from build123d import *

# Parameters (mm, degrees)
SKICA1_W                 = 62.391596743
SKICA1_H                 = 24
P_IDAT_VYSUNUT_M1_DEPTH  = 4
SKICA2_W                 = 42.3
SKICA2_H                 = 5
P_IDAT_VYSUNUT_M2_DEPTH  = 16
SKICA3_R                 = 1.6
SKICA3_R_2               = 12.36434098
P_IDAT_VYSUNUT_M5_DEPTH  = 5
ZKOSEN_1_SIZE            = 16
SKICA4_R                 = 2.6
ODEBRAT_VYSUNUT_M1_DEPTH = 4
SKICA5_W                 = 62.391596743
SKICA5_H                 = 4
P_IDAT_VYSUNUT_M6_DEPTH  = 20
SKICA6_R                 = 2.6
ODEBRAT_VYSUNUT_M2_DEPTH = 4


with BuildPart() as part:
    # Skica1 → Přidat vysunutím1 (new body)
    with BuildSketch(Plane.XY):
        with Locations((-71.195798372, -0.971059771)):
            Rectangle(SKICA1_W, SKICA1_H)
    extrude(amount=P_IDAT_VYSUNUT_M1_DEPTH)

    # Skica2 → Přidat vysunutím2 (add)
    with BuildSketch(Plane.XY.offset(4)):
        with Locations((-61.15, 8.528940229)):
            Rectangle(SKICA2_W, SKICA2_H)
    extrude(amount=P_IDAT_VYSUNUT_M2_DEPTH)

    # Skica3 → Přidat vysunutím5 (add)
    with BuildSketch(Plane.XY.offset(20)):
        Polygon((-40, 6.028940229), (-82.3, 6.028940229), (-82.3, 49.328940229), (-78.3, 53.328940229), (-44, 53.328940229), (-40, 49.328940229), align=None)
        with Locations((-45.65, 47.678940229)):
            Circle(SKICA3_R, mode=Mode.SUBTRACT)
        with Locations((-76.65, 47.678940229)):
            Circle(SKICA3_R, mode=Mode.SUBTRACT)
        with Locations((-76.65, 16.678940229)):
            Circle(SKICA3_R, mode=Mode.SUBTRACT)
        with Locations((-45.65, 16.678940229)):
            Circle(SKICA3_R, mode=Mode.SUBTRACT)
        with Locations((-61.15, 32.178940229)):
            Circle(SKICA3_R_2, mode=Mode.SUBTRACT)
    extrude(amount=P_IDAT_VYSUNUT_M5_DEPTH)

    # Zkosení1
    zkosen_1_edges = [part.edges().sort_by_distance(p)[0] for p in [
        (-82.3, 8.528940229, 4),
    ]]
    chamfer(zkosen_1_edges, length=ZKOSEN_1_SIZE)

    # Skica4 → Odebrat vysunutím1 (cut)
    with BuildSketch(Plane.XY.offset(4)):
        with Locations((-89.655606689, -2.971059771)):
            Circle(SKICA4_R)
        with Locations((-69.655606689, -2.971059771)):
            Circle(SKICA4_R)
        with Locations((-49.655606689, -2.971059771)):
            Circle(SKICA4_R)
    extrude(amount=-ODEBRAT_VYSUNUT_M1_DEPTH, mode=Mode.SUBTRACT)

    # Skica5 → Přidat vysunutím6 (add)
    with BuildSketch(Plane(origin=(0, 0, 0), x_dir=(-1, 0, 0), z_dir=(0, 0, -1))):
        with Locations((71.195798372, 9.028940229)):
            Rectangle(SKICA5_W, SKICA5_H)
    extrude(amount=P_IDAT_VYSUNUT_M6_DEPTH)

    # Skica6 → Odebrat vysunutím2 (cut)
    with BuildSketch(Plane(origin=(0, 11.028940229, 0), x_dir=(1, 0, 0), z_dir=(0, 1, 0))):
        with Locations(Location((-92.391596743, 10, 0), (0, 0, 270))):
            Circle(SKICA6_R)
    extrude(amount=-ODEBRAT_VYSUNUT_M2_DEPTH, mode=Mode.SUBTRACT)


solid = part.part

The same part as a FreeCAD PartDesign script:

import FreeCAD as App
import Part
import Sketcher
Q = App.Units.Quantity


def edges_at(feature, points):
    """Names of the edges that pass closest to the given points."""
    edges = feature.Shape.Edges
    near = lambda p: min(range(len(edges)), key=lambda i: edges[i].distToShape(Part.Vertex(*p))[0])
    return sorted({f"Edge{near(p) + 1}" for p in points})

doc = App.newDocument("Part")
params = doc.addObject("Spreadsheet::Sheet", "Params")
for row, (alias, value) in enumerate([
    ("sketch1_height", "24 mm"),
    ("pad1_length", "4 mm"),
    ("sketch2_height", "5 mm"),
    ("sketch2_width", "42.3 mm"),
    ("pad2_length", "16 mm"),
    ("sketch3_diameter", "3.2 mm"),
    ("sketch3_width", "42.3 mm"),
    ("sketch3_width2", "34.3 mm"),
    ("sketch3_height", "43.3 mm"),
    ("pad3_length", "5 mm"),
    ("chamfer_size", "16 mm"),
    ("sketch4_diameter", "5.2 mm"),
    ("pocket1_length", "4 mm"),
    ("sketch5_height", "4 mm"),
    ("pad4_length", "20 mm"),
    ("sketch6_diameter", "5.2 mm"),
    ("pocket2_length", "4 mm"),
], start=1):
    params.set(f"A{row}", alias)
    params.set(f"B{row}", "=" + value)
    params.setAlias(f"B{row}", alias)

body = doc.addObject("PartDesign::Body", "Body")

sketch1 = doc.addObject("Sketcher::SketchObject", "Sketch")
body.addObject(sketch1)
sketch1.AttachmentSupport = (doc.XY_Plane, [""])
sketch1.MapMode = "FlatFace"
sketch1.addGeometry([
    Part.LineSegment(App.Vector(-102, 11, 0), App.Vector(-102, -13, 0)),
    Part.LineSegment(App.Vector(-102, -13, 0), App.Vector(-40, -13, 0)),
    Part.LineSegment(App.Vector(-40, -13, 0), App.Vector(-40, 11, 0)),
    Part.LineSegment(App.Vector(-40, 11, 0), App.Vector(-102, 11, 0)),
], False)
sketch1.addConstraint([
    Sketcher.Constraint("Coincident", 0, 2, 1, 1),
    Sketcher.Constraint("Coincident", 1, 2, 2, 1),
    Sketcher.Constraint("Coincident", 2, 2, 3, 1),
    Sketcher.Constraint("Coincident", 3, 2, 0, 1),
    Sketcher.Constraint("Vertical", 0),
    Sketcher.Constraint("Horizontal", 1),
    Sketcher.Constraint("Vertical", 2),
    Sketcher.Constraint("Horizontal", 3),
    Sketcher.Constraint("DistanceY", 0, 2, 0, 1, Q("24 mm")),
    Sketcher.Constraint("DistanceX", 1, 2, -1, 1, Q("40 mm")),
    Sketcher.Constraint("DistanceX", 1, 1, 1, 2, Q("62.391597 mm")),
    Sketcher.Constraint("DistanceY", 0, 2, -1, 1, Q("12.97106 mm")),
])
sketch1.setExpression("Constraints[8]", "Params.sketch1_height")
pad1 = doc.addObject("PartDesign::Pad", "Pad")
body.addObject(pad1)
pad1.Profile = sketch1
pad1.setExpression("Length", "Params.pad1_length")

sketch2 = doc.addObject("Sketcher::SketchObject", "Sketch001")
body.addObject(sketch2)
sketch2.AttachmentSupport = (doc.XY_Plane, [""])
sketch2.MapMode = "FlatFace"
sketch2.AttachmentOffset = App.Placement(App.Vector(0, 0, 4), App.Rotation())
sketch2.addGeometry([
    Part.LineSegment(App.Vector(-82, 11, 0), App.Vector(-82, 6, 0)),
    Part.LineSegment(App.Vector(-82, 6, 0), App.Vector(-40, 6, 0)),
    Part.LineSegment(App.Vector(-40, 6, 0), App.Vector(-40, 11, 0)),
    Part.LineSegment(App.Vector(-40, 11, 0), App.Vector(-82, 11, 0)),
], False)
sketch2.addConstraint([
    Sketcher.Constraint("Coincident", 0, 2, 1, 1),
    Sketcher.Constraint("Coincident", 1, 2, 2, 1),
    Sketcher.Constraint("Coincident", 2, 2, 3, 1),
    Sketcher.Constraint("Coincident", 3, 2, 0, 1),
    Sketcher.Constraint("Vertical", 0),
    Sketcher.Constraint("Horizontal", 1),
    Sketcher.Constraint("Vertical", 2),
    Sketcher.Constraint("Horizontal", 3),
    Sketcher.Constraint("DistanceY", 0, 2, 0, 1, Q("5 mm")),
    Sketcher.Constraint("DistanceX", 1, 1, 1, 2, Q("42.3 mm")),
    Sketcher.Constraint("DistanceX", 1, 2, -1, 1, Q("40 mm")),
    Sketcher.Constraint("DistanceY", -1, 1, 0, 2, Q("6.02894 mm")),
])
sketch2.setExpression("Constraints[8]", "Params.sketch2_height")
sketch2.setExpression("Constraints[9]", "Params.sketch2_width")
pad2 = doc.addObject("PartDesign::Pad", "Pad001")
body.addObject(pad2)
pad2.Profile = sketch2
pad2.setExpression("Length", "Params.pad2_length")

sketch3 = doc.addObject("Sketcher::SketchObject", "Sketch002")
body.addObject(sketch3)
sketch3.AttachmentSupport = (doc.XY_Plane, [""])
sketch3.MapMode = "FlatFace"
sketch3.AttachmentOffset = App.Placement(App.Vector(0, 0, 20), App.Rotation())
sketch3.addGeometry([
    Part.LineSegment(App.Vector(-82.3, 6, 0), App.Vector(-40, 6, 0)),
    Part.LineSegment(App.Vector(-40, 6, 0), App.Vector(-40, 49.3, 0)),
    Part.LineSegment(App.Vector(-40, 49.3, 0), App.Vector(-44, 53.3, 0)),
    Part.LineSegment(App.Vector(-44, 53.3, 0), App.Vector(-78.3, 53.3, 0)),
    Part.LineSegment(App.Vector(-78.3, 53.3, 0), App.Vector(-82.3, 49.3, 0)),
    Part.LineSegment(App.Vector(-82.3, 49.3, 0), App.Vector(-82.3, 6, 0)),
    Part.Circle(App.Vector(-45.6, 16.7, 0), App.Vector(0, 0, 1), 1.6),
    Part.Circle(App.Vector(-76.7, 16.7, 0), App.Vector(0, 0, 1), 1.6),
    Part.Circle(App.Vector(-45.6, 47.7, 0), App.Vector(0, 0, 1), 1.6),
    Part.Circle(App.Vector(-61.1, 32.2, 0), App.Vector(0, 0, 1), 12.4),
    Part.Circle(App.Vector(-76.7, 47.7, 0), App.Vector(0, 0, 1), 1.6),
], False)
sketch3.addConstraint([
    Sketcher.Constraint("Coincident", 0, 2, 1, 1),
    Sketcher.Constraint("Coincident", 1, 2, 2, 1),
    Sketcher.Constraint("Coincident", 2, 2, 3, 1),
    Sketcher.Constraint("Coincident", 3, 2, 4, 1),
    Sketcher.Constraint("Coincident", 4, 2, 5, 1),
    Sketcher.Constraint("Coincident", 5, 2, 0, 1),
    Sketcher.Constraint("Horizontal", 0),
    Sketcher.Constraint("Vertical", 1),
    Sketcher.Constraint("Horizontal", 3),
    Sketcher.Constraint("Vertical", 5),
    Sketcher.Constraint("Equal", 6, 7),
    Sketcher.Constraint("Equal", 7, 8),
    Sketcher.Constraint("Equal", 8, 10),
    Sketcher.Constraint("Perpendicular", 2, 4),
    Sketcher.Constraint("Horizontal", 6, 3, 7, 3),
    Sketcher.Constraint("Horizontal", 8, 3, 10, 3),
    Sketcher.Constraint("Horizontal", 1, 2, 4, 2),
    Sketcher.Constraint("Vertical", 6, 3, 8, 3),
    Sketcher.Constraint("Vertical", 7, 3, 10, 3),
    Sketcher.Constraint("Equal", 2, 4),
    Sketcher.Constraint("Diameter", 6, Q("3.2 mm")),
    Sketcher.Constraint("DistanceX", 0, 1, 0, 2, Q("42.3 mm")),
    Sketcher.Constraint("DistanceX", 3, 2, 3, 1, Q("34.3 mm")),
    Sketcher.Constraint("DistanceY", 1, 1, 1, 2, Q("43.3 mm")),
    Sketcher.Constraint("DistanceX", 0, 2, -1, 1, Q("40 mm")),
    Sketcher.Constraint("DistanceX", 7, 3, 6, 3, Q("31 mm")),
    Sketcher.Constraint("DistanceY", 6, 3, 8, 3, Q("31 mm")),
    Sketcher.Constraint("DistanceX", 9, 3, 6, 3, Q("15.5 mm")),
    Sketcher.Constraint("DistanceY", 6, 3, 9, 3, Q("15.5 mm")),
    Sketcher.Constraint("Diameter", 9, Q("24.728682 mm")),
    Sketcher.Constraint("DistanceX", 6, 3, -1, 1, Q("45.65 mm")),
    Sketcher.Constraint("DistanceY", 0, 2, 6, 3, Q("10.65 mm")),
    Sketcher.Constraint("DistanceY", -1, 1, 6, 3, Q("16.67894 mm")),
])
sketch3.setExpression("Constraints[20]", "Params.sketch3_diameter")
sketch3.setExpression("Constraints[21]", "Params.sketch3_width")
sketch3.setExpression("Constraints[22]", "Params.sketch3_width2")
sketch3.setExpression("Constraints[23]", "Params.sketch3_height")
pad3 = doc.addObject("PartDesign::Pad", "Pad002")
body.addObject(pad3)
pad3.Profile = sketch3
pad3.setExpression("Length", "Params.pad3_length")
doc.recompute()

chamfer = doc.addObject("PartDesign::Chamfer", "Chamfer")
body.addObject(chamfer)
chamfer.Base = (pad3, edges_at(pad3, [(-82.3, 8.529, 4)]))
chamfer.setExpression("Size", "Params.chamfer_size")

sketch4 = doc.addObject("Sketcher::SketchObject", "Sketch003")
body.addObject(sketch4)
sketch4.AttachmentSupport = (doc.XY_Plane, [""])
sketch4.MapMode = "FlatFace"
sketch4.AttachmentOffset = App.Placement(App.Vector(0, 0, 4), App.Rotation())
sketch4.addGeometry([
    Part.Circle(App.Vector(-89.7, -3, 0), App.Vector(0, 0, 1), 2.6),
    Part.Circle(App.Vector(-69.7, -3, 0), App.Vector(0, 0, 1), 2.6),
    Part.Circle(App.Vector(-49.7, -3, 0), App.Vector(0, 0, 1), 2.6),
], False)
sketch4.addConstraint([
    Sketcher.Constraint("Equal", 0, 1),
    Sketcher.Constraint("Equal", 1, 2),
    Sketcher.Constraint("Horizontal", 0, 3, 1, 3),
    Sketcher.Constraint("Horizontal", 1, 3, 2, 3),
    Sketcher.Constraint("Diameter", 0, Q("5.2 mm")),
    Sketcher.Constraint("DistanceX", 0, 3, 1, 3, Q("20 mm")),
    Sketcher.Constraint("DistanceX", 1, 3, 2, 3, Q("20 mm")),
    Sketcher.Constraint("DistanceY", 0, 3, -1, 1, Q("2.97106 mm")),
    Sketcher.Constraint("DistanceX", 0, 3, -1, 1, Q("89.655607 mm")),
])
sketch4.setExpression("Constraints[4]", "Params.sketch4_diameter")
pocket1 = doc.addObject("PartDesign::Pocket", "Pocket")
body.addObject(pocket1)
pocket1.Profile = sketch4
pocket1.setExpression("Length", "Params.pocket1_length")

sketch5 = doc.addObject("Sketcher::SketchObject", "Sketch004")
body.addObject(sketch5)
sketch5.AttachmentSupport = (doc.XY_Plane, [""])
sketch5.MapMode = "FlatFace"
sketch5.addGeometry([
    Part.LineSegment(App.Vector(-40, 11, 0), App.Vector(-40, 7, 0)),
    Part.LineSegment(App.Vector(-40, 7, 0), App.Vector(-102.4, 7, 0)),
    Part.LineSegment(App.Vector(-102.4, 7, 0), App.Vector(-102.4, 11, 0)),
    Part.LineSegment(App.Vector(-102.4, 11, 0), App.Vector(-40, 11, 0)),
], False)
sketch5.addConstraint([
    Sketcher.Constraint("Coincident", 0, 2, 1, 1),
    Sketcher.Constraint("Coincident", 1, 2, 2, 1),
    Sketcher.Constraint("Coincident", 2, 2, 3, 1),
    Sketcher.Constraint("Coincident", 3, 2, 0, 1),
    Sketcher.Constraint("Vertical", 0),
    Sketcher.Constraint("Horizontal", 1),
    Sketcher.Constraint("Vertical", 2),
    Sketcher.Constraint("Horizontal", 3),
    Sketcher.Constraint("DistanceY", 0, 2, 0, 1, Q("4 mm")),
    Sketcher.Constraint("DistanceX", 0, 2, -1, 1, Q("40 mm")),
    Sketcher.Constraint("DistanceX", 1, 2, 1, 1, Q("62.391597 mm")),
    Sketcher.Constraint("DistanceY", -1, 1, 0, 2, Q("7.02894 mm")),
])
sketch5.setExpression("Constraints[8]", "Params.sketch5_height")
pad4 = doc.addObject("PartDesign::Pad", "Pad003")
body.addObject(pad4)
pad4.Profile = sketch5
pad4.setExpression("Length", "Params.pad4_length")
pad4.Reversed = True

sketch6 = doc.addObject("Sketcher::SketchObject", "Sketch005")
body.addObject(sketch6)
sketch6.AttachmentSupport = (doc.XZ_Plane, [""])
sketch6.MapMode = "FlatFace"
sketch6.AttachmentOffset = App.Placement(App.Vector(0, 0, -11.02894), App.Rotation())
sketch6.addGeometry(Part.Circle(App.Vector(-92.4, -10, 0), App.Vector(0, 0, 1), 2.6), False)
sketch6.addConstraint([
    Sketcher.Constraint("Diameter", 0, Q("5.2 mm")),
    Sketcher.Constraint("DistanceY", 0, 3, -1, 1, Q("10 mm")),
    Sketcher.Constraint("DistanceX", 0, 3, -1, 1, Q("92.391597 mm")),
])
sketch6.setExpression("Constraints[0]", "Params.sketch6_diameter")
pocket2 = doc.addObject("PartDesign::Pocket", "Pocket001")
body.addObject(pocket2)
pocket2.Profile = sketch6
pocket2.setExpression("Length", "Params.pocket2_length")
pocket2.Reversed = True

doc.recompute()
